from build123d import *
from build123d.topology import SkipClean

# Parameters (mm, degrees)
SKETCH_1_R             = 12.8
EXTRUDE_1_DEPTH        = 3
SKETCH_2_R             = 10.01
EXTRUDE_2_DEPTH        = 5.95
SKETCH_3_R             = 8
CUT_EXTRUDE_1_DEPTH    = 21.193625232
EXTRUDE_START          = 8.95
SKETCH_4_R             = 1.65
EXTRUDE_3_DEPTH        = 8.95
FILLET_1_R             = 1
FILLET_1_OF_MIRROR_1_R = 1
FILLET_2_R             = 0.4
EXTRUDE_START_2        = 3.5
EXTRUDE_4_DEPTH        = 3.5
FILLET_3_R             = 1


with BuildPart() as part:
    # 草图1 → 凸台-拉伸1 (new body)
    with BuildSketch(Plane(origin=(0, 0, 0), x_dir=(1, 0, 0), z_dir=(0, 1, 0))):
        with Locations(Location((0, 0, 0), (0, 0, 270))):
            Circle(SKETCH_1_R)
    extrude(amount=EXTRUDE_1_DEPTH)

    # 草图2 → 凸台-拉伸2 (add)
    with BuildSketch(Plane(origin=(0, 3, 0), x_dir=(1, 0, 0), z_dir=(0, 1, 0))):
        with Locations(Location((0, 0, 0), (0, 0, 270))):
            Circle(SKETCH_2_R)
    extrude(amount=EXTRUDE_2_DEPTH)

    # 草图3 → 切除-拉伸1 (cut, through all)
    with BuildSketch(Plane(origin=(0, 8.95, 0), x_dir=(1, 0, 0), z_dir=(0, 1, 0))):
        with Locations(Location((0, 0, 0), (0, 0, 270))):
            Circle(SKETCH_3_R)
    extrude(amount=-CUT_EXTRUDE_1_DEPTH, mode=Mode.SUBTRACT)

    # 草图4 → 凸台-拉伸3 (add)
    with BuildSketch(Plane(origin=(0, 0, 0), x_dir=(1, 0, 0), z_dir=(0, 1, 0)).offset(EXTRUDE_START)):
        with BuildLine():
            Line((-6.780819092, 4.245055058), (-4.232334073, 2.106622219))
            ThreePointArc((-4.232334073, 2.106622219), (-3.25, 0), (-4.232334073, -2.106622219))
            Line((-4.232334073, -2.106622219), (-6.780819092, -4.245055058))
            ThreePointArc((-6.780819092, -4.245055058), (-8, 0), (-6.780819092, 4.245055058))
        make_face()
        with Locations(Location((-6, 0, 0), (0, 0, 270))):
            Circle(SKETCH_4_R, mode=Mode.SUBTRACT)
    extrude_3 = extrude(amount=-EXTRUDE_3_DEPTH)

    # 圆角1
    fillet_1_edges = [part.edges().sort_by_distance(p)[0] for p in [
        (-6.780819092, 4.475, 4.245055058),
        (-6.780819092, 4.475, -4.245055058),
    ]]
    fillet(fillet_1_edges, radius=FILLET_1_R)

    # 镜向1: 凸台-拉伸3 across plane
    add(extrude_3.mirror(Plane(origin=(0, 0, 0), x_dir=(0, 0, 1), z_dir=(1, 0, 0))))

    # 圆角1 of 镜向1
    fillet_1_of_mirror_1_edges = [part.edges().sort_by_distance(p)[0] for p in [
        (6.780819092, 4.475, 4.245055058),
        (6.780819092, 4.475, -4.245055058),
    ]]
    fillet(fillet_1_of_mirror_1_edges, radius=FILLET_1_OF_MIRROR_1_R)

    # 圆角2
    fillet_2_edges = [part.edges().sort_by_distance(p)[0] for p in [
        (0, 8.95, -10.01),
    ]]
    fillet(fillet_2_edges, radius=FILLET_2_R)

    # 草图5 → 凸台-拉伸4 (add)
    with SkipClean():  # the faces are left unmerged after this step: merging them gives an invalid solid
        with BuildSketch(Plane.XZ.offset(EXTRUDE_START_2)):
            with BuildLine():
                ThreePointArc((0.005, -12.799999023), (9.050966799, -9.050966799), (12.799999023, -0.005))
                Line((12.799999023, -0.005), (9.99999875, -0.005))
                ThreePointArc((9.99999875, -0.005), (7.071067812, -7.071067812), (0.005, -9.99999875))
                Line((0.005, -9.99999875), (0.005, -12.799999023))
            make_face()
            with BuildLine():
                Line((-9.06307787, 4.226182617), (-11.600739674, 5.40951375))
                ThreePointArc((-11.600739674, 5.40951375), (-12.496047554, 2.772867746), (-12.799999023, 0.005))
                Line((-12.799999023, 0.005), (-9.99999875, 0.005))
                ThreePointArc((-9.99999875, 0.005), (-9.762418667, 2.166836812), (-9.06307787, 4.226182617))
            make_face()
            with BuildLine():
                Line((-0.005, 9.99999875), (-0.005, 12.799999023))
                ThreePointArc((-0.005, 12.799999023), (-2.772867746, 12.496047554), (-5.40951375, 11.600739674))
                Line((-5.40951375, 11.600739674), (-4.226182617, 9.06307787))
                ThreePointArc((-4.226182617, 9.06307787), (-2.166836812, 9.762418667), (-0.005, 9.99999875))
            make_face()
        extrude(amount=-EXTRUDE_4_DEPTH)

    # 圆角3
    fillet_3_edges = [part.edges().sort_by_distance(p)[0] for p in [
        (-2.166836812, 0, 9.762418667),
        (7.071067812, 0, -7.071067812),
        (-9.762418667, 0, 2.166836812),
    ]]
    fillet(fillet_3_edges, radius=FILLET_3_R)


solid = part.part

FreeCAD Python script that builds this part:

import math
import FreeCAD as App
import Part
import Sketcher

V = App.Vector
Q = App.Units.Quantity


def edges_at(feature, points):
    """Names of the edges that pass closest to the given points."""
    edges = feature.Shape.Edges
    near = lambda p: min(range(len(edges)), key=lambda i: edges[i].distToShape(Part.Vertex(*p))[0])
    return sorted({f"Edge{near(p) + 1}" for p in points})

doc = App.newDocument("Part")
body = doc.addObject("PartDesign::Body", "Body")

sketch1 = body.newObject("Sketcher::SketchObject", "Sketch")
sketch1.AttachmentSupport = (doc.getObject("XZ_Plane"), [""])
sketch1.MapMode = "FlatFace"
sketch1.addGeometry(Part.Circle(V(0, 0, 0), V(0, 0, 1), 13), False)
sketch1.addConstraint([
    Sketcher.Constraint("Coincident", 0, 3, -1, 1),
    Sketcher.Constraint("Diameter", 0, Q("25.6 mm")),
])
pad1 = body.newObject("PartDesign::Pad", "Pad")
pad1.Profile = sketch1
pad1.Length = 3
pad1.Reversed = True

sketch2 = body.newObject("Sketcher::SketchObject", "Sketch001")
sketch2.AttachmentSupport = (doc.getObject("XZ_Plane"), [""])
sketch2.MapMode = "FlatFace"
sketch2.AttachmentOffset = App.Placement(V(0, 0, -3), App.Rotation())
sketch2.addGeometry(Part.Circle(V(0, 0, 0), V(0, 0, 1), 10), False)
sketch2.addConstraint([
    Sketcher.Constraint("Coincident", 0, 3, -1, 1),
    Sketcher.Constraint("Diameter", 0, Q("20.02 mm")),
])
pad2 = body.newObject("PartDesign::Pad", "Pad001")
pad2.Profile = sketch2
pad2.Length = 5.95
pad2.Reversed = True

sketch3 = body.newObject("Sketcher::SketchObject", "Sketch002")
sketch3.AttachmentSupport = (doc.getObject("XZ_Plane"), [""])
sketch3.MapMode = "FlatFace"
sketch3.AttachmentOffset = App.Placement(V(0, 0, -8.95), App.Rotation())
sketch3.addGeometry(Part.Circle(V(0, 0, 0), V(0, 0, 1), 8), False)
sketch3.addConstraint([
    Sketcher.Constraint("Coincident", 0, 3, -1, 1),
    Sketcher.Constraint("Diameter", 0, Q("16 mm")),
])
pocket1 = body.newObject("PartDesign::Pocket", "Pocket")
pocket1.Profile = sketch3
pocket1.Type = "ThroughAll"
pocket1.Reversed = True

sketch4 = body.newObject("Sketcher::SketchObject", "Sketch003")
sketch4.AttachmentSupport = (doc.getObject("XZ_Plane"), [""])
sketch4.MapMode = "FlatFace"
sketch4.AttachmentOffset = App.Placement(V(0, 0, -8.95), App.Rotation())
sketch4.addGeometry([
    Part.LineSegment(V(-4.2, -2.1, 0), V(-6.8, -4.2, 0)),
    Part.ArcOfCircle(Part.Circle(V(0, 0, 0), V(0, 0, 1), 8), math.radians(148), math.radians(212)),
    Part.LineSegment(V(-6.8, 4.2, 0), V(-4.2, 2.1, 0)),
    Part.ArcOfCircle(Part.Circle(V(-6, 0, 0), V(0, 0, 1), 2.8), math.radians(-50), math.radians(50)),
    Part.Circle(V(-6, 0, 0), V(0, 0, 1), 1.6),
], False)
sketch4.addConstraint([
    Sketcher.Constraint("Coincident", 0, 2, 1, 2),
    Sketcher.Constraint("Coincident", 1, 1, 2, 1),
    Sketcher.Constraint("Tangent", 2, 2, 3, 2),
    Sketcher.Constraint("Tangent", 3, 1, 0, 1),
    Sketcher.Constraint("Coincident", 1, 3, -1, 1),
    Sketcher.Constraint("Coincident", 4, 3, 3, 3),
    Sketcher.Constraint("Symmetric", 2, 2, 3, 1, -1),
    Sketcher.Constraint("Radius", 1, Q("8 mm")),
    Sketcher.Constraint("Diameter", 4, Q("3.3 mm")),
    Sketcher.Constraint("Angle", 0, Q("-140 deg")),
    Sketcher.Constraint("Radius", 3, Q("2.75 mm")),
    Sketcher.Constraint("DistanceX", 3, 3, -1, 1, Q("6 mm")),
])
pad3 = body.newObject("PartDesign::Pad", "Pad002")
pad3.Profile = sketch4
pad3.Length = 8.95
doc.recompute()

fillet = body.newObject("PartDesign::Fillet", "Fillet")
fillet.Base = (pad3, edges_at(pad3, [(-6.781, 4.475, 4.245), (-6.781, 4.475, -4.245)]))
fillet.Radius = 1
doc.recompute()

mirrored = body.newObject("PartDesign::Mirrored", "Mirrored")
mirrored.Originals = [pad3]
mirrored.MirrorPlane = (doc.getObject("YZ_Plane"), [""])
body.Tip = mirrored
doc.recompute()

fillet2 = body.newObject("PartDesign::Fillet", "Fillet001")
fillet2.Base = (mirrored, edges_at(mirrored, [(6.781, 4.475, 4.245), (6.781, 4.475, -4.245)]))
fillet2.Radius = 1
doc.recompute()

fillet3 = body.newObject("PartDesign::Fillet", "Fillet002")
fillet3.Base = (fillet2, edges_at(fillet2, [(0, 8.95, -10.01)]))
fillet3.Radius = 0.4

sketch5 = body.newObject("Sketcher::SketchObject", "Sketch004")
sketch5.AttachmentSupport = (doc.getObject("XZ_Plane"), [""])
sketch5.MapMode = "FlatFace"
sketch5.AttachmentOffset = App.Placement(V(0, 0, 3.5), App.Rotation())
sketch5.addGeometry([
    Part.ArcOfCircle(Part.Circle(V(0, 0, 0), V(0, 0, 1), 12.8), math.radians(-90), math.radians(0)),
    Part.LineSegment(V(12.8, 0, 0), V(10, 0, 0)),
    Part.ArcOfCircle(Part.Circle(V(0, 0, 0), V(0, 0, 1), 10), math.radians(-90), math.radians(0)),
    Part.LineSegment(V(0, -10, 0), V(0, -12.8, 0)),
    Part.LineSegment(V(-9.1, 4.2, 0), V(-11.6, 5.4, 0)),
    Part.ArcOfCircle(Part.Circle(V(0, 0, 0), V(0, 0, 1), 12.8), math.radians(155), math.radians(180)),
    Part.LineSegment(V(-12.8, 0, 0), V(-10, 0, 0)),
    Part.ArcOfCircle(Part.Circle(V(0, 0, 0), V(0, 0, 1), 10), math.radians(155), math.radians(180)),
    Part.LineSegment(V(0, 10, 0), V(0, 12.8, 0)),
    Part.ArcOfCircle(Part.Circle(V(0, 0, 0), V(0, 0, 1), 12.8), math.radians(90), math.radians(115)),
    Part.LineSegment(V(-5.4, 11.6, 0), V(-4.2, 9.1, 0)),
    Part.ArcOfCircle(Part.Circle(V(0, 0, 0), V(0, 0, 1), 10), math.radians(90), math.radians(115)),
], False)
sketch5.addConstraint([
    Sketcher.Constraint("Coincident", 0, 2, 1, 1),
    Sketcher.Constraint("Coincident", 1, 2, 2, 2),
    Sketcher.Constraint("Coincident", 2, 1, 3, 1),
    Sketcher.Constraint("Coincident", 3, 2, 0, 1),
    Sketcher.Constraint("Coincident", 4, 2, 5, 1),
    Sketcher.Constraint("Coincident", 5, 2, 6, 1),
    Sketcher.Constraint("Coincident", 6, 2, 7, 2),
    Sketcher.Constraint("Coincident", 7, 1, 4, 1),
    Sketcher.Constraint("Coincident", 8, 2, 9, 1),
    Sketcher.Constraint("Coincident", 9, 2, 10, 1),
    Sketcher.Constraint("Coincident", 10, 2, 11, 2),
    Sketcher.Constraint("Coincident", 11, 1, 8, 1),
    Sketcher.Constraint("Horizontal", 1),
    Sketcher.Constraint("Vertical", 3),
    Sketcher.Constraint("Horizontal", 6),
    Sketcher.Constraint("Vertical", 8),
    Sketcher.Constraint("Coincident", 0, 3, -1, 1),
    Sketcher.Constraint("Coincident", 2, 3, -1, 1),
    Sketcher.Constraint("Coincident", 5, 3, -1, 1),
    Sketcher.Constraint("Coincident", 7, 3, -1, 1),
    Sketcher.Constraint("Coincident", 9, 3, -1, 1),
    Sketcher.Constraint("Coincident", 11, 3, -1, 1),
    Sketcher.Constraint("Equal", 0, 5),
    Sketcher.Constraint("Equal", 2, 7),
    Sketcher.Constraint("Equal", 5, 9),
    Sketcher.Constraint("Equal", 7, 11),
    Sketcher.Constraint("Radius", 2, Q("10 mm")),
    Sketcher.Constraint("Radius", 0, Q("12.8 mm")),
    Sketcher.Constraint("Angle", 4, Q("155 deg")),
    Sketcher.Constraint("Angle", 10, Q("-65 deg")),
    Sketcher.Constraint("DistanceY", 0, 2, -1, 1, Q("0.005 mm")),
    Sketcher.Constraint("DistanceX", -1, 1, 2, 1, Q("0.005 mm")),
    Sketcher.Constraint("DistanceY", -1, 1, 5, 2, Q("0.005 mm")),
    Sketcher.Constraint("DistanceX", 8, 2, -1, 1, Q("0.005 mm")),
    Sketcher.Constraint("DistanceX", 4, 2, -1, 1, Q("11.60074 mm")),
    Sketcher.Constraint("DistanceY", -1, 1, 9, 2, Q("11.60074 mm")),
])
pad4 = body.newObject("PartDesign::Pad", "Pad003")
pad4.Profile = sketch5
pad4.Length = 3.5
pad4.Reversed = True
doc.recompute()

fillet4 = body.newObject("PartDesign::Fillet", "Fillet003")
fillet4.Base = (pad4, edges_at(pad4, [(-2.167, 0, 9.762), (7.071, 0, -7.071), (-9.762, 0, 2.167)]))
fillet4.Radius = 1

doc.recompute()
